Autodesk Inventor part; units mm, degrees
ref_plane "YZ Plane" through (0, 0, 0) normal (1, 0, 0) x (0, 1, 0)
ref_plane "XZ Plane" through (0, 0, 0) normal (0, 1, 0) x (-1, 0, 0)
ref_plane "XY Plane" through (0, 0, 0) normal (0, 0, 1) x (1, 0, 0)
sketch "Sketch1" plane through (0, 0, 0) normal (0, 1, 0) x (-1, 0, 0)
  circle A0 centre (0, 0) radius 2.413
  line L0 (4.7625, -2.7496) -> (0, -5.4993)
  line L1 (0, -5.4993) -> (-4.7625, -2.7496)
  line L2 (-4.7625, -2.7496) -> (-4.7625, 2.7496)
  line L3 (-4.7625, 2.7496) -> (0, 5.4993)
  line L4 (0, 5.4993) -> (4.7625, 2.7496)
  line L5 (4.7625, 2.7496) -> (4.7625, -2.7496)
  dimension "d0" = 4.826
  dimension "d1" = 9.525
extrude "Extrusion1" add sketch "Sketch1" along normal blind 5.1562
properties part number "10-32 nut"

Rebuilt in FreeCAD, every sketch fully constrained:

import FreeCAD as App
import Part
import Sketcher
from FreeCAD import Vector
Q = App.Units.Quantity


def add_polygon(sketch, points):
    """Adds a closed chain of lines whose ends are joined by coincident constraints."""
    first, n = sketch.GeometryCount, len(points)
    for a, b in zip(points, points[1:] + points[:1]):
        sketch.addGeometry(Part.LineSegment(App.Vector(*a, 0), App.Vector(*b, 0)), False)
    for i in range(n):
        sketch.addConstraint(Sketcher.Constraint("Coincident", first + i, 2, first + (i + 1) % n, 1))

doc = App.newDocument("Part")
params = doc.addObject("Spreadsheet::Sheet", "Params")
for row, (alias, value) in enumerate([
    ("sketch1_diameter", "0.19 in"),
    ("pad1_length", "0.203 in"),
], start=1):
    params.set(f"A{row}", alias)
    params.set(f"B{row}", "=" + value)
    params.setAlias(f"B{row}", alias)

body = doc.addObject("PartDesign::Body", "Body")

sketch1 = body.newObject("Sketcher::SketchObject", "Sketch")
sketch1.AttachmentSupport = (doc.getObject("XZ_Plane"), [""])
sketch1.MapMode = "FlatFace"
add_polygon(sketch1, [(0, -5.4993), (-4.7625, -2.7496), (-4.7625, 2.7496), (0, 5.4993), (4.7625, 2.7496), (4.7625, -2.7496)])
sketch1.addGeometry(Part.Circle(Vector(0, 0, 0), Vector(0, 0, 1), 2.413), False)
sketch1.addConstraint([
    Sketcher.Constraint("Vertical", 1),
    Sketcher.Constraint("Vertical", 4),
    Sketcher.Constraint("Coincident", 6, 3, -1, 1),
    Sketcher.Constraint("Symmetric", 0, 2, 3, 2, -1, 1),
    Sketcher.Constraint("Symmetric", 2, 2, 5, 2, -1, 1),
    Sketcher.Constraint("PointOnObject", 2, 2, -2),
    Sketcher.Constraint("Parallel", 2, 5),
    Sketcher.Constraint("Horizontal", 1, 2, 3, 2),
    Sketcher.Constraint("Diameter", 6, Q("0.19 in")),
    Sketcher.Constraint("Angle", 0, Q("149.9994 deg")),
    Sketcher.Constraint("DistanceX", 1, 2, 3, 2, Q("0.375 in")),
    Sketcher.Constraint("DistanceY", 1, 1, 1, 2, Q("0.2165 in")),
])
sketch1.setExpression("Constraints[14]", "Params.sketch1_diameter")
pad1 = body.newObject("PartDesign::Pad", "Pad")
pad1.Profile = sketch1
pad1.setExpression("Length", "Params.pad1_length")
pad1.Reversed = True

doc.recompute()
